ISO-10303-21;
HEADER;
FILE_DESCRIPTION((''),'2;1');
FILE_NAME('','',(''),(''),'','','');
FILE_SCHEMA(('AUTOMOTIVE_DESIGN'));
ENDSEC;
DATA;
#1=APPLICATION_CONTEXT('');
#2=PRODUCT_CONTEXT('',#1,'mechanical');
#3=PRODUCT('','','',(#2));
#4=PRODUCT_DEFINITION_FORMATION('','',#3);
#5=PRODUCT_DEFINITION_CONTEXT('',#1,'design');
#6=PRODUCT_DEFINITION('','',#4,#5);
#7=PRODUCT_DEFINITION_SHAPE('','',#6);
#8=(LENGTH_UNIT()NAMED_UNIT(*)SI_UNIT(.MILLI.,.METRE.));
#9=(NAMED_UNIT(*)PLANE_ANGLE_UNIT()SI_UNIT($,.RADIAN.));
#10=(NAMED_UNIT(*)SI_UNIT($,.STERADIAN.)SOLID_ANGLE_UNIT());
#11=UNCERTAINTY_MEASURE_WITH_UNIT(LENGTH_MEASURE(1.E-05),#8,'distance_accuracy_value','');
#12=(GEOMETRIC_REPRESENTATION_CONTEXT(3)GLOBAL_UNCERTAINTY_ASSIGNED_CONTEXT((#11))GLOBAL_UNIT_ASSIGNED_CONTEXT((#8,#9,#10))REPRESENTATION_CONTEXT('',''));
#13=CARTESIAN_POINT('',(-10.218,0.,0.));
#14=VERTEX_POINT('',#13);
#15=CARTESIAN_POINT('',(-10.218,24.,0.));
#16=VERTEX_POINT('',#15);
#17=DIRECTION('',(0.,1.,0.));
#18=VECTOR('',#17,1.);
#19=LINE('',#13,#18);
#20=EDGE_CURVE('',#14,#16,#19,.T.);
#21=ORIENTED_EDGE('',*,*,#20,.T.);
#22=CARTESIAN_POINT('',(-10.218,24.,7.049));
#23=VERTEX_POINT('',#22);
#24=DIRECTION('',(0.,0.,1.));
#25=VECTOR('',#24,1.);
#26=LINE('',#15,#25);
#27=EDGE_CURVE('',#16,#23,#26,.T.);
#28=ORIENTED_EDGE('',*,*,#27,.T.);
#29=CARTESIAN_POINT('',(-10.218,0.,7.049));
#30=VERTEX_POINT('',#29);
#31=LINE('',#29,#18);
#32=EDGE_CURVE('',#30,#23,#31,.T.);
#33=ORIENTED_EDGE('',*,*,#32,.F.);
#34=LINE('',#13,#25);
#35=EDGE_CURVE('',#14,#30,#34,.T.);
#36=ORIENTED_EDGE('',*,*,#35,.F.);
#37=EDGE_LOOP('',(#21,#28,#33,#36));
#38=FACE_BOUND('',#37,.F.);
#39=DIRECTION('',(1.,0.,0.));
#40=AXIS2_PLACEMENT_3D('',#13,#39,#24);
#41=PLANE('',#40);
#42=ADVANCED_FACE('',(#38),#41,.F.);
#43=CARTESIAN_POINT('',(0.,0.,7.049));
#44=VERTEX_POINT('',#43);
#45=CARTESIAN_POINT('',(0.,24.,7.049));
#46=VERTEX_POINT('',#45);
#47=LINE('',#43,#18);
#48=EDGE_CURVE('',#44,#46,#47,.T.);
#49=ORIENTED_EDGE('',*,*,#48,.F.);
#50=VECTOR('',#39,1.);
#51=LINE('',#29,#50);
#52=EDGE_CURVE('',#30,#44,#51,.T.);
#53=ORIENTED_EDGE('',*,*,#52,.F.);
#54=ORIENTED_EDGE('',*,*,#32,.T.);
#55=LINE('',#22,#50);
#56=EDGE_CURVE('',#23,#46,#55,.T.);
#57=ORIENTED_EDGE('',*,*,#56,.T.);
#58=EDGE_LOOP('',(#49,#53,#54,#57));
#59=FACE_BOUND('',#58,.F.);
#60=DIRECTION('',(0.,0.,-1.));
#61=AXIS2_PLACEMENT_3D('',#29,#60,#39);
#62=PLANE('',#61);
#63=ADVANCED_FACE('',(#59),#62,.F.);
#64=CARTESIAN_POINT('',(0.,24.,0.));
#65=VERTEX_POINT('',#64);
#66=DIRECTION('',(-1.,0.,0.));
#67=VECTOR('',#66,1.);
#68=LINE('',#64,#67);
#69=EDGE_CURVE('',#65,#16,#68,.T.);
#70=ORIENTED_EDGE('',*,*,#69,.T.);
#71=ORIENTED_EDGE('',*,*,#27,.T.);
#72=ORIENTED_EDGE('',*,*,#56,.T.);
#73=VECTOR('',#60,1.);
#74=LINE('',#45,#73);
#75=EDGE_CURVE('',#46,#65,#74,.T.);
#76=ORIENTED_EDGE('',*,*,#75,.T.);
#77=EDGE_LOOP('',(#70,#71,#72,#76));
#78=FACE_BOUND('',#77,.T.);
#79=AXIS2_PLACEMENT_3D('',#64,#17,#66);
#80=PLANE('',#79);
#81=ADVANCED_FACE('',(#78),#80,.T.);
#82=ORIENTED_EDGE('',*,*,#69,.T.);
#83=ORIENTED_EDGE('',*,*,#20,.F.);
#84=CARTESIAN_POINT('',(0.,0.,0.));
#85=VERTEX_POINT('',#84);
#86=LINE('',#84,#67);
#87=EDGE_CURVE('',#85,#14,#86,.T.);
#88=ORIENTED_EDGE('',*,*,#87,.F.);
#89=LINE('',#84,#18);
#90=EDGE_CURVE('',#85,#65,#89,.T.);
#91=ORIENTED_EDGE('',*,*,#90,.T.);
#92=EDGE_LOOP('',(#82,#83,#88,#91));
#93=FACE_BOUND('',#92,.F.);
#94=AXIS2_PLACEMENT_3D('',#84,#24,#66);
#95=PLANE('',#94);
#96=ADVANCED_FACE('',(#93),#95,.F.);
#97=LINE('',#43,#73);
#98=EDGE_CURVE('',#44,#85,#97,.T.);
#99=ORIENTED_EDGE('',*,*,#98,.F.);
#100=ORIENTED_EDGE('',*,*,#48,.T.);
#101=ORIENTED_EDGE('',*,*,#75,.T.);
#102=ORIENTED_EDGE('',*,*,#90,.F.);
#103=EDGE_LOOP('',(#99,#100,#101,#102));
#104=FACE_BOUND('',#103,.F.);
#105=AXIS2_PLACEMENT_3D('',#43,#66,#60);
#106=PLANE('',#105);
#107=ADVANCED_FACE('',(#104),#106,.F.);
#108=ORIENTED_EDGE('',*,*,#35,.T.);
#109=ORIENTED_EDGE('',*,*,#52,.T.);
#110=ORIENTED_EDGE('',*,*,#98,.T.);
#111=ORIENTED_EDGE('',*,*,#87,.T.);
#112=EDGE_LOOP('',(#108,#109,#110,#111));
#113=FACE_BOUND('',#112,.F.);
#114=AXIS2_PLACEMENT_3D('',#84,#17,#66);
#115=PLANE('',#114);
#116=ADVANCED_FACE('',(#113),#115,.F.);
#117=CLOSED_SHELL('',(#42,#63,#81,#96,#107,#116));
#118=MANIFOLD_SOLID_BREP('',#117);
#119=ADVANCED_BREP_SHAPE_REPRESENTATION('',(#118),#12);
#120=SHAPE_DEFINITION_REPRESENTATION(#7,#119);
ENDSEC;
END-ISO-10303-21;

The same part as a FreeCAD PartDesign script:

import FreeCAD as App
import Part
import Sketcher
from FreeCAD import Vector
Q = App.Units.Quantity


def add_polygon(sketch, points):
    """Adds a closed chain of lines whose ends are joined by coincident constraints."""
    first, n = sketch.GeometryCount, len(points)
    for a, b in zip(points, points[1:] + points[:1]):
        sketch.addGeometry(Part.LineSegment(App.Vector(*a, 0), App.Vector(*b, 0)), False)
    for i in range(n):
        sketch.addConstraint(Sketcher.Constraint("Coincident", first + i, 2, first + (i + 1) % n, 1))

doc = App.newDocument("Part")
body = doc.addObject("PartDesign::Body", "Body")

sketch1 = body.newObject("Sketcher::SketchObject", "Sketch")
sketch1.AttachmentSupport = (doc.getObject("XZ_Plane"), [""])
sketch1.MapMode = "FlatFace"
add_polygon(sketch1, [(0, 7), (0, 0), (-10, 0), (-10, 7)])
sketch1.addConstraint(Sketcher.Constraint("Vertical", 0))
sketch1.addConstraint(Sketcher.Constraint("Horizontal", 1))
sketch1.addConstraint(Sketcher.Constraint("Vertical", 2))
sketch1.addConstraint(Sketcher.Constraint("Horizontal", 3))
sketch1.addConstraint(Sketcher.Constraint("Coincident", 0, 2, -1, 1))
sketch1.addConstraint(Sketcher.Constraint("DistanceX", 1, 2, 1, 1, Q("10.218 mm")))
sketch1.addConstraint(Sketcher.Constraint("DistanceY", 0, 2, 0, 1, Q("7.049 mm")))
pad1 = body.newObject("PartDesign::Pad", "Pad")
pad1.Profile = sketch1
pad1.Length = 24
pad1.Reversed = True

doc.recompute()
